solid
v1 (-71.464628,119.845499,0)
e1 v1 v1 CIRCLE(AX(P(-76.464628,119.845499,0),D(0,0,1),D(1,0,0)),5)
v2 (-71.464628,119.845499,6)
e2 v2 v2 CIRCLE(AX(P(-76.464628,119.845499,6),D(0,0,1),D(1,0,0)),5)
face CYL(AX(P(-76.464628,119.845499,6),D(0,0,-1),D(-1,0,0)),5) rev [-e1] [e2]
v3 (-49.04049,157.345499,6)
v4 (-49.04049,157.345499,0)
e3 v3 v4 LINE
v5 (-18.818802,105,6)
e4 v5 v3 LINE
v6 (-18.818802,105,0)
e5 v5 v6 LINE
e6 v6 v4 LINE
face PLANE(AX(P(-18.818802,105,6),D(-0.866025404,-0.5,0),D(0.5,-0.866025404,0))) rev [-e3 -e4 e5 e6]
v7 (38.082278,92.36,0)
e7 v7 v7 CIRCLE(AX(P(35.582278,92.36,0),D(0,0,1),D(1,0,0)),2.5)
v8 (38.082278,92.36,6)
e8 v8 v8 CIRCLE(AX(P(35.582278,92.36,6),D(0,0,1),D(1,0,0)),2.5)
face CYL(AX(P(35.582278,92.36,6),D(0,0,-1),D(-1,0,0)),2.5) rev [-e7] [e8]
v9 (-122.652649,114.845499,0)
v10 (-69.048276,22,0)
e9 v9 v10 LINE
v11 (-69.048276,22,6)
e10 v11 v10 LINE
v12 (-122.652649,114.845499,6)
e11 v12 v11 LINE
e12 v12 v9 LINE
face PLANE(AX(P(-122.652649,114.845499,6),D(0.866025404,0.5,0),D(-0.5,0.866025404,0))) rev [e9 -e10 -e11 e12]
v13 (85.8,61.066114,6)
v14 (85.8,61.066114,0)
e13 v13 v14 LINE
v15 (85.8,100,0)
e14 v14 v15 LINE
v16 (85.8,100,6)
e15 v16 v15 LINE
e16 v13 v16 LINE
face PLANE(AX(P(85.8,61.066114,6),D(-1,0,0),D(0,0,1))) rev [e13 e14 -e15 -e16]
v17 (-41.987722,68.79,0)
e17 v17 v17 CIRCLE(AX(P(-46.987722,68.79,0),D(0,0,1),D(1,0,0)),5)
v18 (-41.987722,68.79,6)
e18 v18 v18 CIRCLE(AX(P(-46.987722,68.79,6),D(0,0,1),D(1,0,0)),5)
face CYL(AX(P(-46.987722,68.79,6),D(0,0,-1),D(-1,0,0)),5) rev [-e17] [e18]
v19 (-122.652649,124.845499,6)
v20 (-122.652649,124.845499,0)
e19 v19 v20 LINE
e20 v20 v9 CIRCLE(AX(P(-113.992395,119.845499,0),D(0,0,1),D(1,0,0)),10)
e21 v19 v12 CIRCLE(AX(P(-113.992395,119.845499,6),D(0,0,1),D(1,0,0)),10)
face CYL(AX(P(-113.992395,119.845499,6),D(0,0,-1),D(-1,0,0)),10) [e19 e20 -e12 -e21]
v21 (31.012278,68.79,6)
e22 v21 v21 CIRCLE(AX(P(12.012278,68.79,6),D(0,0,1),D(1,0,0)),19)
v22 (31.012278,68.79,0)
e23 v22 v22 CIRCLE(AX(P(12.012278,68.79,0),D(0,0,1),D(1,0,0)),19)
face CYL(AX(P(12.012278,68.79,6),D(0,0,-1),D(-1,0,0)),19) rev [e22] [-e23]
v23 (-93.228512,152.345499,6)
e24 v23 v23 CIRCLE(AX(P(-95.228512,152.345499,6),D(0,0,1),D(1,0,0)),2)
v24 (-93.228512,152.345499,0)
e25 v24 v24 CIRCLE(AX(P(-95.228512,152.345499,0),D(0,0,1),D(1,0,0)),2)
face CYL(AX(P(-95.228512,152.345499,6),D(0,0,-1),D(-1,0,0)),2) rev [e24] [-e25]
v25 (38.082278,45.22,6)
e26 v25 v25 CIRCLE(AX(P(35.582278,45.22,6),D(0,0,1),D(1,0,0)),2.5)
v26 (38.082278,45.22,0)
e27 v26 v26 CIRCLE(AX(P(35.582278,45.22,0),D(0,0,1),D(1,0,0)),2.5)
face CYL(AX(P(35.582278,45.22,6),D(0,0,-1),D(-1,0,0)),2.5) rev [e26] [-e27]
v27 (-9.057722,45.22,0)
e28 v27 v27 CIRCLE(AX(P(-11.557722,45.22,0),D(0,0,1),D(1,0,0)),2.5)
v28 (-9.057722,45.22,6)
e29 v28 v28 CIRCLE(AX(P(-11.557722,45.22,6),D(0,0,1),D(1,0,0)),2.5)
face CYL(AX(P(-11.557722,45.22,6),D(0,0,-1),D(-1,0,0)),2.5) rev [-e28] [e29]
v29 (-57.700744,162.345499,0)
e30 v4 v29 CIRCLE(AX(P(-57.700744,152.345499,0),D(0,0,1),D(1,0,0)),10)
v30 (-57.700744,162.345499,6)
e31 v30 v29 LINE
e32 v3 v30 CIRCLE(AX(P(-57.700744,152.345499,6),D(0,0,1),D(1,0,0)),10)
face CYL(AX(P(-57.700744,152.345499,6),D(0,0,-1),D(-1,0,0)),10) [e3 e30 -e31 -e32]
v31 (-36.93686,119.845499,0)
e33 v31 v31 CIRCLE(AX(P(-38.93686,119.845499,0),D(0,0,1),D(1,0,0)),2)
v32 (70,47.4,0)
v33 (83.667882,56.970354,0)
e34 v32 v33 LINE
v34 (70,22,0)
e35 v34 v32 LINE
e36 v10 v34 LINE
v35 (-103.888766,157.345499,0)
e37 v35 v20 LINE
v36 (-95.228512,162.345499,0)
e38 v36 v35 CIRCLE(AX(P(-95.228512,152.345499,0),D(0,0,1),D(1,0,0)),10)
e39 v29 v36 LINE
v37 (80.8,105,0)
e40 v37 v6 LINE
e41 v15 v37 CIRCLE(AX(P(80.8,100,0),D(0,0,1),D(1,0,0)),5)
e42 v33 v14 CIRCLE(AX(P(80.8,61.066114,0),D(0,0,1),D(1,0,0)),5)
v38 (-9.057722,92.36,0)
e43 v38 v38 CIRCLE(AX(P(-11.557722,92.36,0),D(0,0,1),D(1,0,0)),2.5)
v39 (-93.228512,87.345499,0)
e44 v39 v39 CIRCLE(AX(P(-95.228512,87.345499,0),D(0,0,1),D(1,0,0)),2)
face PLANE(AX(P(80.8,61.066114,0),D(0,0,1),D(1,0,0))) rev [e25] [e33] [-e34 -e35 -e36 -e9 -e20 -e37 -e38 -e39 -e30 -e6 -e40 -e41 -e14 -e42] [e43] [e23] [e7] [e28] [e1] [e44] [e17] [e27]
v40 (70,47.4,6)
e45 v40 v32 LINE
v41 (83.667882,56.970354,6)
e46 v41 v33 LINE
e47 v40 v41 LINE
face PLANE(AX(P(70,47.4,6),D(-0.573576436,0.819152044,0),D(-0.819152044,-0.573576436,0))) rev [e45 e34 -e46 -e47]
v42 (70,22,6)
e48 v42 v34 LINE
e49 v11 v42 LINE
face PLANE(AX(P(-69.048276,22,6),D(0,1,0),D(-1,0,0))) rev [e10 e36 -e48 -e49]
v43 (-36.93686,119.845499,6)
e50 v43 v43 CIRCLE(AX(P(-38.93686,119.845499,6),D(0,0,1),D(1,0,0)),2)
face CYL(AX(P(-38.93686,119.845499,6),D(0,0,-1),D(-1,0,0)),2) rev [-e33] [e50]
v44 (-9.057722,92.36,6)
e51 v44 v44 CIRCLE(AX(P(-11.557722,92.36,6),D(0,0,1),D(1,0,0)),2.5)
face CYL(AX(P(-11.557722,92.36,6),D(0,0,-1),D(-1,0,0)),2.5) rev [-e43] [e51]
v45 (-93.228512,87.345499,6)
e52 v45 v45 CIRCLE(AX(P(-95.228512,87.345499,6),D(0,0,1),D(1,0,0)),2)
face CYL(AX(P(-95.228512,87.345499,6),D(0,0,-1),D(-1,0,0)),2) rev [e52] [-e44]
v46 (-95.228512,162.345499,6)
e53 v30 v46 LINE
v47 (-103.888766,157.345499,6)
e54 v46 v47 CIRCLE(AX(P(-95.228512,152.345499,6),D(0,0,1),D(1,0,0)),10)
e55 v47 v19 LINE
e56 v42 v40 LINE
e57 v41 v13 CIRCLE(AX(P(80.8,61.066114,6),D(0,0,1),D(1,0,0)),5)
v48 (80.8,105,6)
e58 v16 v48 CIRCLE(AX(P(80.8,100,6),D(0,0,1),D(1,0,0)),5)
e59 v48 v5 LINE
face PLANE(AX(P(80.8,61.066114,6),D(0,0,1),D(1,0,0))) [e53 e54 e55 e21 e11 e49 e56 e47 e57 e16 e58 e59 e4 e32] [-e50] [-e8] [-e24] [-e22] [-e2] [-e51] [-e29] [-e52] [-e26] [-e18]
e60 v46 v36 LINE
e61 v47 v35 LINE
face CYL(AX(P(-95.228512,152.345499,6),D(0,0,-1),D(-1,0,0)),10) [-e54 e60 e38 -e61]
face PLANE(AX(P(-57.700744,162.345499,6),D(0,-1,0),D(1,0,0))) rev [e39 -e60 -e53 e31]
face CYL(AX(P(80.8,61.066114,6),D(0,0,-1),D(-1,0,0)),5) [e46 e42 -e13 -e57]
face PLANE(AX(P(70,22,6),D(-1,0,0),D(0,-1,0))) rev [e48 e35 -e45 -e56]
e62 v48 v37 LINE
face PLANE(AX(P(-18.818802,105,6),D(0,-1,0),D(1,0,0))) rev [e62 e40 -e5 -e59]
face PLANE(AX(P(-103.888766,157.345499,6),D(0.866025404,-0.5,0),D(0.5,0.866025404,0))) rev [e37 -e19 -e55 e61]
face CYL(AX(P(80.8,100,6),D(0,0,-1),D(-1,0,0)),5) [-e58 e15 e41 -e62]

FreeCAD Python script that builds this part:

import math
import FreeCAD as App
import Part
import Sketcher
from FreeCAD import Vector
Q = App.Units.Quantity

doc = App.newDocument("Part")
params = doc.addObject("Spreadsheet::Sheet", "Params")
for row, (alias, value) in enumerate([
    ("sketch1_diameter", "10 mm"),
    ("sketch1_diameter2", "4 mm"),
    ("sketch1_diameter3", "5 mm"),
    ("sketch1_diameter4", "38 mm"),
    ("sketch1_radius", "10 mm"),
    ("pad1_length", "6 mm"),
], start=1):
    params.set(f"A{row}", alias)
    params.set(f"B{row}", "=" + value)
    params.setAlias(f"B{row}", alias)

body = doc.addObject("PartDesign::Body", "Body")

# Sketch on XY plane
sketch1 = body.newObject("Sketcher::SketchObject", "Sketch")
sketch1.AttachmentSupport = (doc.getObject("XY_Plane"), [""])
sketch1.MapMode = "FlatFace"
sketch1.addGeometry(Part.LineSegment(Vector(-69, 22, 0), Vector(70, 22, 0)), False)
sketch1.addGeometry(Part.LineSegment(Vector(70, 22, 0), Vector(70, 47.4, 0)), False)
sketch1.addGeometry(Part.LineSegment(Vector(70, 47.4, 0), Vector(83.7, 57, 0)), False)
sketch1.addGeometry(Part.ArcOfCircle(Part.Circle(Vector(80.8, 61.1, 0), Vector(0, 0, 1), 5), math.radians(-55), math.radians(0)), False)
sketch1.addGeometry(Part.LineSegment(Vector(85.8, 61.1, 0), Vector(85.8, 100, 0)), False)
sketch1.addGeometry(Part.ArcOfCircle(Part.Circle(Vector(80.8, 100, 0), Vector(0, 0, 1), 5), math.radians(0), math.radians(90)), False)
sketch1.addGeometry(Part.LineSegment(Vector(80.8, 105, 0), Vector(-18.8, 105, 0)), False)
sketch1.addGeometry(Part.LineSegment(Vector(-18.8, 105, 0), Vector(-49, 157.3, 0)), False)
sketch1.addGeometry(Part.ArcOfCircle(Part.Circle(Vector(-57.7, 152.3, 0), Vector(0, 0, 1), 10), math.radians(30), math.radians(90)), False)
sketch1.addGeometry(Part.LineSegment(Vector(-57.7, 162.3, 0), Vector(-95.2, 162.3, 0)), False)
sketch1.addGeometry(Part.ArcOfCircle(Part.Circle(Vector(-95.2, 152.3, 0), Vector(0, 0, 1), 10), math.radians(90), math.radians(150)), False)
sketch1.addGeometry(Part.LineSegment(Vector(-103.9, 157.3, 0), Vector(-122.7, 124.8, 0)), False)
sketch1.addGeometry(Part.ArcOfCircle(Part.Circle(Vector(-114, 119.8, 0), Vector(0, 0, 1), 10), math.radians(150), math.radians(210)), False)
sketch1.addGeometry(Part.LineSegment(Vector(-122.7, 114.8, 0), Vector(-69, 22, 0)), False)
sketch1.addGeometry(Part.Circle(Vector(-47, 68.8, 0), Vector(0, 0, 1), 5), False)
sketch1.addGeometry(Part.Circle(Vector(-95.2, 87.3, 0), Vector(0, 0, 1), 2), False)
sketch1.addGeometry(Part.Circle(Vector(-11.6, 45.2, 0), Vector(0, 0, 1), 2.5), False)
sketch1.addGeometry(Part.Circle(Vector(35.6, 45.2, 0), Vector(0, 0, 1), 2.5), False)
sketch1.addGeometry(Part.Circle(Vector(12, 68.8, 0), Vector(0, 0, 1), 19), False)
sketch1.addGeometry(Part.Circle(Vector(-11.6, 92.4, 0), Vector(0, 0, 1), 2.5), False)
sketch1.addGeometry(Part.Circle(Vector(35.6, 92.4, 0), Vector(0, 0, 1), 2.5), False)
sketch1.addGeometry(Part.Circle(Vector(-76.5, 119.8, 0), Vector(0, 0, 1), 5), False)
sketch1.addGeometry(Part.Circle(Vector(-38.9, 119.8, 0), Vector(0, 0, 1), 2), False)
sketch1.addGeometry(Part.Circle(Vector(-95.2, 152.3, 0), Vector(0, 0, 1), 2), False)
sketch1.addConstraint(Sketcher.Constraint("Coincident", 0, 2, 1, 1))
sketch1.addConstraint(Sketcher.Constraint("Coincident", 1, 2, 2, 1))
sketch1.addConstraint(Sketcher.Constraint("Tangent", 2, 2, 3, 1))
sketch1.addConstraint(Sketcher.Constraint("Tangent", 3, 2, 4, 1))
sketch1.addConstraint(Sketcher.Constraint("Tangent", 4, 2, 5, 1))
sketch1.addConstraint(Sketcher.Constraint("Tangent", 5, 2, 6, 1))
sketch1.addConstraint(Sketcher.Constraint("Coincident", 6, 2, 7, 1))
sketch1.addConstraint(Sketcher.Constraint("Tangent", 7, 2, 8, 1))
sketch1.addConstraint(Sketcher.Constraint("Tangent", 8, 2, 9, 1))
sketch1.addConstraint(Sketcher.Constraint("Tangent", 9, 2, 10, 1))
sketch1.addConstraint(Sketcher.Constraint("Tangent", 10, 2, 11, 1))
sketch1.addConstraint(Sketcher.Constraint("Tangent", 11, 2, 12, 1))
sketch1.addConstraint(Sketcher.Constraint("Tangent", 12, 2, 13, 1))
sketch1.addConstraint(Sketcher.Constraint("Coincident", 13, 2, 0, 1))
sketch1.addConstraint(Sketcher.Constraint("Horizontal", 0))
sketch1.addConstraint(Sketcher.Constraint("Vertical", 1))
sketch1.addConstraint(Sketcher.Constraint("Vertical", 4))
sketch1.addConstraint(Sketcher.Constraint("Horizontal", 6))
sketch1.addConstraint(Sketcher.Constraint("Horizontal", 9))
sketch1.addConstraint(Sketcher.Constraint("Coincident", 23, 3, 10, 3))
sketch1.addConstraint(Sketcher.Constraint("Equal", 3, 5))
sketch1.addConstraint(Sketcher.Constraint("Equal", 8, 10))
sketch1.addConstraint(Sketcher.Constraint("Equal", 10, 12))
sketch1.addConstraint(Sketcher.Constraint("Equal", 5, 14))
sketch1.addConstraint(Sketcher.Constraint("Equal", 16, 17))
sketch1.addConstraint(Sketcher.Constraint("Equal", 17, 19))
sketch1.addConstraint(Sketcher.Constraint("Equal", 19, 20))
sketch1.addConstraint(Sketcher.Constraint("Equal", 14, 21))
sketch1.addConstraint(Sketcher.Constraint("Equal", 15, 22))
sketch1.addConstraint(Sketcher.Constraint("Equal", 22, 23))
sketch1.addConstraint(Sketcher.Constraint("Parallel", 7, 13))
sketch1.addConstraint(Sketcher.Constraint("Horizontal", 16, 3, 17, 3))
sketch1.addConstraint(Sketcher.Constraint("Horizontal", 14, 3, 18, 3))
sketch1.addConstraint(Sketcher.Constraint("Horizontal", 19, 3, 20, 3))
sketch1.addConstraint(Sketcher.Constraint("Horizontal", 12, 3, 21, 3))
sketch1.addConstraint(Sketcher.Constraint("Horizontal", 21, 3, 22, 3))
sketch1.addConstraint(Sketcher.Constraint("Horizontal", 7, 2, 10, 2))
sketch1.addConstraint(Sketcher.Constraint("Vertical", 10, 3, 15, 3))
sketch1.addConstraint(Sketcher.Constraint("Vertical", 16, 3, 19, 3))
sketch1.addConstraint(Sketcher.Constraint("Vertical", 17, 3, 20, 3))
sketch1.addConstraint(Sketcher.Constraint("Diameter", 14, Q("10 mm")))
sketch1.addConstraint(Sketcher.Constraint("Diameter", 15, Q("4 mm")))
sketch1.addConstraint(Sketcher.Constraint("Diameter", 16, Q("5 mm")))
sketch1.addConstraint(Sketcher.Constraint("Diameter", 18, Q("38 mm")))
sketch1.addConstraint(Sketcher.Constraint("Radius", 8, Q("10 mm")))
sketch1.addConstraint(Sketcher.Constraint("Angle", 2, Q("35 deg")))
sketch1.addConstraint(Sketcher.Constraint("Angle", 7, Q("120 deg")))
sketch1.addConstraint(Sketcher.Constraint("DistanceY", 1, 1, 1, 2, Q("25.4 mm")))
sketch1.addConstraint(Sketcher.Constraint("DistanceY", -1, 1, 5, 3, Q("100 mm")))
sketch1.addConstraint(Sketcher.Constraint("DistanceX", -1, 1, 0, 2, Q("70 mm")))
sketch1.addConstraint(Sketcher.Constraint("DistanceY", -1, 1, 0, 2, Q("22 mm")))
sketch1.addConstraint(Sketcher.Constraint("DistanceY", 15, 3, 10, 3, Q("65 mm")))
sketch1.addConstraint(Sketcher.Constraint("DistanceX", 14, 3, 18, 3, Q("59 mm")))
sketch1.addConstraint(Sketcher.Constraint("DistanceX", -1, 1, 3, 3, Q("80.8 mm")))
sketch1.addConstraint(Sketcher.Constraint("DistanceY", 12, 3, 10, 3, Q("32.5 mm")))
sketch1.addConstraint(Sketcher.Constraint("DistanceY", -1, 1, 14, 3, Q("68.79 mm")))
sketch1.addConstraint(Sketcher.Constraint("DistanceY", -1, 1, 16, 3, Q("45.22 mm")))
sketch1.addConstraint(Sketcher.Constraint("DistanceY", -1, 1, 19, 3, Q("92.36 mm")))
sketch1.addConstraint(Sketcher.Constraint("DistanceX", 14, 3, 16, 3, Q("35.43 mm")))
sketch1.addConstraint(Sketcher.Constraint("DistanceX", 16, 3, 17, 3, Q("47.14 mm")))
sketch1.addConstraint(Sketcher.Constraint("DistanceY", -1, 1, 8, 3, Q("152.345499 mm")))
sketch1.addConstraint(Sketcher.Constraint("DistanceX", 0, 1, 0, 2, Q("139.048276 mm")))
sketch1.addConstraint(Sketcher.Constraint("DistanceX", 6, 2, 6, 1, Q("99.618802 mm")))
sketch1.addConstraint(Sketcher.Constraint("DistanceX", 14, 3, -1, 1, Q("46.987722 mm")))
sketch1.addConstraint(Sketcher.Constraint("DistanceX", 22, 3, -1, 1, Q("38.93686 mm")))
sketch1.addConstraint(Sketcher.Constraint("DistanceX", 11, 2, 21, 3, Q("46.188022 mm")))
sketch1.setExpression("Constraints[40]", "Params.sketch1_diameter")
sketch1.setExpression("Constraints[41]", "Params.sketch1_diameter2")
sketch1.setExpression("Constraints[42]", "Params.sketch1_diameter3")
sketch1.setExpression("Constraints[43]", "Params.sketch1_diameter4")
sketch1.setExpression("Constraints[44]", "Params.sketch1_radius")
pad1 = body.newObject("PartDesign::Pad", "Pad")
pad1.Profile = sketch1
pad1.setExpression("Length", "Params.pad1_length")

doc.recompute()
